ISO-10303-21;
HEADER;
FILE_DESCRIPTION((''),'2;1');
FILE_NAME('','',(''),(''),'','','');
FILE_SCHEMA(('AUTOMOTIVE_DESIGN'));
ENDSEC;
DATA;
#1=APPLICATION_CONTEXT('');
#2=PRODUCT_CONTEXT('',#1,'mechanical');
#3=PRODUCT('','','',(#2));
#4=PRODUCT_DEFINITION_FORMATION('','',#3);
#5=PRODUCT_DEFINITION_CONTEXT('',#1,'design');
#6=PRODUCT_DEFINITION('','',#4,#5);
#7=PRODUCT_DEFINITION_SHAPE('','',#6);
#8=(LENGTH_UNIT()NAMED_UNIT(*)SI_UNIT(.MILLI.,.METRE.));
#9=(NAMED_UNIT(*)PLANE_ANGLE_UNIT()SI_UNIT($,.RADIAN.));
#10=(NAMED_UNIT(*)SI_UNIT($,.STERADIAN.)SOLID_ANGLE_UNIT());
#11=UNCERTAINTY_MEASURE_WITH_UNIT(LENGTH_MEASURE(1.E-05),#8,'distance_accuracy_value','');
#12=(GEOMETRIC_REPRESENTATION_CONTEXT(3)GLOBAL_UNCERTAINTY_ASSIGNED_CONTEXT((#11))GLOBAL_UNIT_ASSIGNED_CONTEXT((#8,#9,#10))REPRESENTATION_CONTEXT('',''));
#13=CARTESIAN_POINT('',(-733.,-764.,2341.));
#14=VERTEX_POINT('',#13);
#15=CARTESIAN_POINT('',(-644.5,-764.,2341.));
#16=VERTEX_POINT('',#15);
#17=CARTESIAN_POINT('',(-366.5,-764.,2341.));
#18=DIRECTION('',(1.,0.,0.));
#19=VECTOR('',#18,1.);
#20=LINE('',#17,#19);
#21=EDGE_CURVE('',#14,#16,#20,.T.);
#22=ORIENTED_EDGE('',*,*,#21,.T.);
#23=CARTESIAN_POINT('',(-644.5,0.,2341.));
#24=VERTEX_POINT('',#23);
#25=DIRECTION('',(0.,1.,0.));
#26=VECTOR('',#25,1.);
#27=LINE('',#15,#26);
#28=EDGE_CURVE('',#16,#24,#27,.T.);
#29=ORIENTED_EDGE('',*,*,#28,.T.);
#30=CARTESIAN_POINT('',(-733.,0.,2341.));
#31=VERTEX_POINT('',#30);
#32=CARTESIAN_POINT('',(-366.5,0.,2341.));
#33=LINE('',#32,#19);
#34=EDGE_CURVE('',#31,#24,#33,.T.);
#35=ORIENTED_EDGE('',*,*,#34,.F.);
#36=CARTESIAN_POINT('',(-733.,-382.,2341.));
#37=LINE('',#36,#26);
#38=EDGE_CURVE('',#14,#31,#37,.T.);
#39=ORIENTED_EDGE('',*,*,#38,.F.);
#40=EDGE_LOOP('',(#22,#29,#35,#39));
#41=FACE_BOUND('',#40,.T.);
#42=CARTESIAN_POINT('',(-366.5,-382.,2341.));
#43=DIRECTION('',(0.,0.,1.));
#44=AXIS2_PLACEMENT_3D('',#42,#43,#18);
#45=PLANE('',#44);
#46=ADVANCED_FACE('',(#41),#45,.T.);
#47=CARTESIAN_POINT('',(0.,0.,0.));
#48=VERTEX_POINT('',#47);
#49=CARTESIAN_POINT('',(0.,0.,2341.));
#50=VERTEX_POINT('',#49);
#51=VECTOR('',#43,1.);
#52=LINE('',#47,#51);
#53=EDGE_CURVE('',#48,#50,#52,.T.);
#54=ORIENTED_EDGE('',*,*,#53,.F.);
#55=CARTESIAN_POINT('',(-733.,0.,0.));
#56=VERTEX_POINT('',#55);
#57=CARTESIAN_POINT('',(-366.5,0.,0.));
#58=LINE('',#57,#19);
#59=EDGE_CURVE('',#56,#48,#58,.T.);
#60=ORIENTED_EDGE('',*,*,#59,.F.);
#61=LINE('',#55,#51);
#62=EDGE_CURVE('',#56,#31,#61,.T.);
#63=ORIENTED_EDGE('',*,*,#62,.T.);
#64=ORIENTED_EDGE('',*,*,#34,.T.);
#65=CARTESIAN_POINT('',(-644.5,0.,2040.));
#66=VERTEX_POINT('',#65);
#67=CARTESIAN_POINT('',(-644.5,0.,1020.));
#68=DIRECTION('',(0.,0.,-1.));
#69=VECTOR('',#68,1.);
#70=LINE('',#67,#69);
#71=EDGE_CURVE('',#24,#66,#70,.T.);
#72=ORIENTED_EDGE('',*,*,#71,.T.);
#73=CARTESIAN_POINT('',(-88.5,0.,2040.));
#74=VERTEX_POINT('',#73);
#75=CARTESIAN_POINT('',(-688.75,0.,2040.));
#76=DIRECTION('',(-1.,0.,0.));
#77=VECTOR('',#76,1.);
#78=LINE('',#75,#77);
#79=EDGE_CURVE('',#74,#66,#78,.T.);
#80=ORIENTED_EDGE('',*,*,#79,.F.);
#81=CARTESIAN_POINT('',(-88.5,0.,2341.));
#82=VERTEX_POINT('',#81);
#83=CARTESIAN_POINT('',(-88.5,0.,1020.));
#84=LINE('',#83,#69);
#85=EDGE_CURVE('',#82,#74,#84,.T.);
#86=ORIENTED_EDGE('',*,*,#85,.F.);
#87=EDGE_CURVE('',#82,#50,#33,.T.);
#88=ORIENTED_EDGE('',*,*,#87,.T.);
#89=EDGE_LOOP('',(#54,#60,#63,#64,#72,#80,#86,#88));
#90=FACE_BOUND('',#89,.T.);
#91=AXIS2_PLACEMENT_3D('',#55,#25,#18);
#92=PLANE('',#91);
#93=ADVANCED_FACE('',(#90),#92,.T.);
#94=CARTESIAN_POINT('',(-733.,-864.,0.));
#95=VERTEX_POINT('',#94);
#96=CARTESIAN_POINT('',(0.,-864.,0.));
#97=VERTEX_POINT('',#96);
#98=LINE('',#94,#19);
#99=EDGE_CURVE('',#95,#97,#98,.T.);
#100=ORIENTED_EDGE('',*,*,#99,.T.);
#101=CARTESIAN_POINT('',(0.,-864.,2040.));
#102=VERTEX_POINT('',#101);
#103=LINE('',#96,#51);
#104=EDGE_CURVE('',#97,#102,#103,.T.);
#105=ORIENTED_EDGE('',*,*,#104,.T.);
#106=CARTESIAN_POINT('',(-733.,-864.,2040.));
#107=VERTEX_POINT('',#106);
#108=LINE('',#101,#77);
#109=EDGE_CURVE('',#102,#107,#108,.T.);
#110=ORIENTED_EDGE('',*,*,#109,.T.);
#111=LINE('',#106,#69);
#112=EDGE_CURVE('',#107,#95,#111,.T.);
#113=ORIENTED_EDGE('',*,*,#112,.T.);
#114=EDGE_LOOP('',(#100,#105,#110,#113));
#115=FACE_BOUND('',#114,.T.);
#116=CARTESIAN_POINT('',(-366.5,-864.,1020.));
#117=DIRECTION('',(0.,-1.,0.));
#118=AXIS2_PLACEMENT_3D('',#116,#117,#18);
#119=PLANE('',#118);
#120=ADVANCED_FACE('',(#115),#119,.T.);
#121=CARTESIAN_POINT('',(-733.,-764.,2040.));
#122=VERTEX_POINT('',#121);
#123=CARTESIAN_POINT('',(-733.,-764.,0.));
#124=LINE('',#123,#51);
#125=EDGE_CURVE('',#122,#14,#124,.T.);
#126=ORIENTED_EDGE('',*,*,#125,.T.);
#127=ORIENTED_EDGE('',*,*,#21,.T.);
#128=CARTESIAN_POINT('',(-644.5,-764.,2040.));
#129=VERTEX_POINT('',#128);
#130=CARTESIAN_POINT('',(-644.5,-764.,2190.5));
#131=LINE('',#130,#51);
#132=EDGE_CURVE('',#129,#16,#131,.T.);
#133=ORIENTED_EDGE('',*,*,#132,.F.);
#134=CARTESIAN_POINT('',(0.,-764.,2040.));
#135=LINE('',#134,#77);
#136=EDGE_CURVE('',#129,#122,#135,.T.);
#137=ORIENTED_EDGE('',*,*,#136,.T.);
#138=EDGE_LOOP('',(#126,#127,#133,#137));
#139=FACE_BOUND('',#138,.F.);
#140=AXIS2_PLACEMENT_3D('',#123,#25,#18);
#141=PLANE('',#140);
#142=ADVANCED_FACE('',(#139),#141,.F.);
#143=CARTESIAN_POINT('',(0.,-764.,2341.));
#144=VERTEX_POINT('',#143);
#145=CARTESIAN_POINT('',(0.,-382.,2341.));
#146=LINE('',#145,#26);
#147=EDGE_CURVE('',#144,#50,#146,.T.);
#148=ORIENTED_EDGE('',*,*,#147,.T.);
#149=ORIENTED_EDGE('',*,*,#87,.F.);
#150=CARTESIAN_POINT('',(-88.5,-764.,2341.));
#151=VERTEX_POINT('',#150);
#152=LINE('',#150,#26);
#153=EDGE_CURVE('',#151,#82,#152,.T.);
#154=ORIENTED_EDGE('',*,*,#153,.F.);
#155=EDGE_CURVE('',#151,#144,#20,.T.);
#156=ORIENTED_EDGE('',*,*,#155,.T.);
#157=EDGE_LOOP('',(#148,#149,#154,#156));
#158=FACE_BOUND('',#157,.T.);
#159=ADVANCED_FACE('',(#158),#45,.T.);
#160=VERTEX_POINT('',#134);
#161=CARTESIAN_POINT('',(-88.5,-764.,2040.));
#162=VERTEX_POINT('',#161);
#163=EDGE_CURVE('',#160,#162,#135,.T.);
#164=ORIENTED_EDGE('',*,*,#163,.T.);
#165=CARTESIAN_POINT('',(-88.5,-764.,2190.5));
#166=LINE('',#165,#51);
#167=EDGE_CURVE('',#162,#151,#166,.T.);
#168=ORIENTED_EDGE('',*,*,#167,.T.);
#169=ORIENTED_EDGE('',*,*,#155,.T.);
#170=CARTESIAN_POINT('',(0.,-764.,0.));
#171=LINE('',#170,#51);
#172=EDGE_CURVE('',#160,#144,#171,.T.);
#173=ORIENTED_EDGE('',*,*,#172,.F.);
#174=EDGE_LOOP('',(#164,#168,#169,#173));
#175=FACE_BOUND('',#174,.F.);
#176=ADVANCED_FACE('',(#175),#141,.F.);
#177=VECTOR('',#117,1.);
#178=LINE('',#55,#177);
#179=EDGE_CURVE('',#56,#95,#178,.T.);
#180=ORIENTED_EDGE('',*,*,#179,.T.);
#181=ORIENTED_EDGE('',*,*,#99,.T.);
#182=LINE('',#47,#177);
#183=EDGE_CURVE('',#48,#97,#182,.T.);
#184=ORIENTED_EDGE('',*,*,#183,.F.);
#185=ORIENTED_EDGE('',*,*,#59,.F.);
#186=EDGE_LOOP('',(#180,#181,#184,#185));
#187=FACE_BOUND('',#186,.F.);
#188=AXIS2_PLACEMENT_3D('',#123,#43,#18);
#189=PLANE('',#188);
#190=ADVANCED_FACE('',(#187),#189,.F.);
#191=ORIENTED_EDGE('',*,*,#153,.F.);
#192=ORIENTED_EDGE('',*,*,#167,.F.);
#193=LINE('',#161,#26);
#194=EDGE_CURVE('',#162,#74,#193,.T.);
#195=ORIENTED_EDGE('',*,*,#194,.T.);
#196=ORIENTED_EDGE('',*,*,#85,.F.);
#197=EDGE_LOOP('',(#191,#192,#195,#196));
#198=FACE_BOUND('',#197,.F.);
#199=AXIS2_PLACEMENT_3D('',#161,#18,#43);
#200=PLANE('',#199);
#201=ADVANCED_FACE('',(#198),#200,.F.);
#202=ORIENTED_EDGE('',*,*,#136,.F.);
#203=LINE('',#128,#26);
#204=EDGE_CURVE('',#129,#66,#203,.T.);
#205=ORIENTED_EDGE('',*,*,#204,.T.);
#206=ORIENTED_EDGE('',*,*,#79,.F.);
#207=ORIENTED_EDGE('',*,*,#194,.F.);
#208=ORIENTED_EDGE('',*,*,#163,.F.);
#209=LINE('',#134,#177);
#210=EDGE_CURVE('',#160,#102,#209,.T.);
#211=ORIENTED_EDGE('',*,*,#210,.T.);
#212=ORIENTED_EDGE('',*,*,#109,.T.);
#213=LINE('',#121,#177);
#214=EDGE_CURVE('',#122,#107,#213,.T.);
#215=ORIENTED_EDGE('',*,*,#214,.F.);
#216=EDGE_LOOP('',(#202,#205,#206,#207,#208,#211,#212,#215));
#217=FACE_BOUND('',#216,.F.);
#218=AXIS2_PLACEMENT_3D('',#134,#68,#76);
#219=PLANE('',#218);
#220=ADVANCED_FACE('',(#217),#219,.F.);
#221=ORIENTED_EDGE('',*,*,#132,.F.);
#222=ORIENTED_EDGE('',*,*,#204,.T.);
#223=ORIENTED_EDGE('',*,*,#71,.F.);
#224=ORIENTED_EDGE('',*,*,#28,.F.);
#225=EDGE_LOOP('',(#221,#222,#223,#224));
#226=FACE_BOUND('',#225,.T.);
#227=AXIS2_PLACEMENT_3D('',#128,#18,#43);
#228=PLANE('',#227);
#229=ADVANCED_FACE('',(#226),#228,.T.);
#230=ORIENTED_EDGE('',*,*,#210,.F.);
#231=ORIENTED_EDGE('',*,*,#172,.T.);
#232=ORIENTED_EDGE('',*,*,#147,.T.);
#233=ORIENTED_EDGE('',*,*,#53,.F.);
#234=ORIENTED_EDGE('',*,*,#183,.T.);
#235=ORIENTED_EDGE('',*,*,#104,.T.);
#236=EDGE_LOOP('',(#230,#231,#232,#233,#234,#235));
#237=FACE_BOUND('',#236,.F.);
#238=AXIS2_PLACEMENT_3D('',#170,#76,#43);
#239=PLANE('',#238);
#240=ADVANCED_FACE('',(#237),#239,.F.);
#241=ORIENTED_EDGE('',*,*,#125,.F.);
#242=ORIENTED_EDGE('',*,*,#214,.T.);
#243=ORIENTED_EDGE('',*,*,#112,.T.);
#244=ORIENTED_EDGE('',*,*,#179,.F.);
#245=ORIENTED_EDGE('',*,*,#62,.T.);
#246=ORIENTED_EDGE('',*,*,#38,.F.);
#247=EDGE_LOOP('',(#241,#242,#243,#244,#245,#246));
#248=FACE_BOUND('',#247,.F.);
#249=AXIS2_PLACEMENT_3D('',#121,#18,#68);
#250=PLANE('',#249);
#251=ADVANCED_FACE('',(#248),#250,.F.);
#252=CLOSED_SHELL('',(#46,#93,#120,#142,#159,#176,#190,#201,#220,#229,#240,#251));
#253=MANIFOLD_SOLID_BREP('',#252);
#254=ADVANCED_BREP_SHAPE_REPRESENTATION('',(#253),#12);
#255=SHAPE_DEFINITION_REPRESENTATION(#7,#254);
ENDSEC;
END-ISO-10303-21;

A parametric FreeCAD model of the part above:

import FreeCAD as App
import Part
import Sketcher

V = App.Vector

doc = App.newDocument("Part")
body = doc.addObject("PartDesign::Body", "Body")

# Sketch on XY plane
sketch1 = doc.addObject("Sketcher::SketchObject", "Sketch")
body.addObject(sketch1)
sketch1.AttachmentSupport = (doc.XY_Plane, [""])
sketch1.MapMode = "FlatFace"
sketch1.addGeometry([
    Part.LineSegment(V(-733, 0, 0), V(-733, -764, 0)),
    Part.LineSegment(V(-733, -764, 0), V(0, -764, 0)),
    Part.LineSegment(V(0, -764, 0), V(0, 0, 0)),
    Part.LineSegment(V(0, 0, 0), V(-733, 0, 0)),
], False)
sketch1.addConstraint([
    Sketcher.Constraint("Coincident", 0, 2, 1, 1),
    Sketcher.Constraint("Coincident", 1, 2, 2, 1),
    Sketcher.Constraint("Coincident", 2, 2, 3, 1),
    Sketcher.Constraint("Coincident", 3, 2, 0, 1),
    Sketcher.Constraint("Vertical", 0),
    Sketcher.Constraint("Horizontal", 1),
    Sketcher.Constraint("Vertical", 2),
    Sketcher.Constraint("Horizontal", 3),
    Sketcher.Constraint("Coincident", 2, 2, -1, 1),
    Sketcher.Constraint("DistanceX", 1, 1, 1, 2, 733.0),
    Sketcher.Constraint("DistanceY", 0, 2, 0, 1, 764.0),
])
pad1 = doc.addObject("PartDesign::Pad", "Pad")
body.addObject(pad1)
pad1.Profile = sketch1
pad1.Length = 2341

# Sketch on XZ plane
sketch2 = doc.addObject("Sketcher::SketchObject", "Sketch001")
body.addObject(sketch2)
sketch2.AttachmentSupport = (doc.XZ_Plane, [""])
sketch2.MapMode = "FlatFace"
sketch2.AttachmentOffset = App.Placement(V(0, 0, 764), App.Rotation())
sketch2.addGeometry([
    Part.LineSegment(V(-644.5, 2341, 0), V(-644.5, 2040, 0)),
    Part.LineSegment(V(-644.5, 2040, 0), V(-88.5, 2040, 0)),
    Part.LineSegment(V(-88.5, 2040, 0), V(-88.5, 2341, 0)),
    Part.LineSegment(V(-88.5, 2341, 0), V(-644.5, 2341, 0)),
], False)
sketch2.addConstraint([
    Sketcher.Constraint("Coincident", 0, 2, 1, 1),
    Sketcher.Constraint("Coincident", 1, 2, 2, 1),
    Sketcher.Constraint("Coincident", 2, 2, 3, 1),
    Sketcher.Constraint("Coincident", 3, 2, 0, 1),
    Sketcher.Constraint("Vertical", 0),
    Sketcher.Constraint("Horizontal", 1),
    Sketcher.Constraint("Vertical", 2),
    Sketcher.Constraint("Horizontal", 3),
    Sketcher.Constraint("DistanceX", 1, 1, 1, 2, 556.0),
    Sketcher.Constraint("DistanceY", 0, 2, 0, 1, 301.0),
    Sketcher.Constraint("DistanceY", -1, 1, 0, 2, 2040.0),
    Sketcher.Constraint("DistanceX", 0, 2, -1, 1, 644.5),
])
pocket1 = doc.addObject("PartDesign::Pocket", "Pocket")
body.addObject(pocket1)
pocket1.Profile = sketch2
pocket1.Type = "ThroughAll"

# Sketch on XZ plane
sketch3 = doc.addObject("Sketcher::SketchObject", "Sketch002")
body.addObject(sketch3)
sketch3.AttachmentSupport = (doc.XZ_Plane, [""])
sketch3.MapMode = "FlatFace"
sketch3.AttachmentOffset = App.Placement(V(0, 0, 764), App.Rotation())
sketch3.addGeometry([
    Part.LineSegment(V(-733, 2040, 0), V(-733, 0, 0)),
    Part.LineSegment(V(-733, 0, 0), V(0, 0, 0)),
    Part.LineSegment(V(0, 0, 0), V(0, 2040, 0)),
    Part.LineSegment(V(0, 2040, 0), V(-733, 2040, 0)),
], False)
sketch3.addConstraint([
    Sketcher.Constraint("Coincident", 0, 2, 1, 1),
    Sketcher.Constraint("Coincident", 1, 2, 2, 1),
    Sketcher.Constraint("Coincident", 2, 2, 3, 1),
    Sketcher.Constraint("Coincident", 3, 2, 0, 1),
    Sketcher.Constraint("Vertical", 0),
    Sketcher.Constraint("Horizontal", 1),
    Sketcher.Constraint("Vertical", 2),
    Sketcher.Constraint("Horizontal", 3),
    Sketcher.Constraint("Coincident", 1, 2, -1, 1),
    Sketcher.Constraint("DistanceX", 1, 1, 1, 2, 733.0),
    Sketcher.Constraint("DistanceY", 0, 2, 0, 1, 2040.0),
])
pad2 = doc.addObject("PartDesign::Pad", "Pad001")
body.addObject(pad2)
pad2.Profile = sketch3
pad2.Length = 100

doc.recompute()
